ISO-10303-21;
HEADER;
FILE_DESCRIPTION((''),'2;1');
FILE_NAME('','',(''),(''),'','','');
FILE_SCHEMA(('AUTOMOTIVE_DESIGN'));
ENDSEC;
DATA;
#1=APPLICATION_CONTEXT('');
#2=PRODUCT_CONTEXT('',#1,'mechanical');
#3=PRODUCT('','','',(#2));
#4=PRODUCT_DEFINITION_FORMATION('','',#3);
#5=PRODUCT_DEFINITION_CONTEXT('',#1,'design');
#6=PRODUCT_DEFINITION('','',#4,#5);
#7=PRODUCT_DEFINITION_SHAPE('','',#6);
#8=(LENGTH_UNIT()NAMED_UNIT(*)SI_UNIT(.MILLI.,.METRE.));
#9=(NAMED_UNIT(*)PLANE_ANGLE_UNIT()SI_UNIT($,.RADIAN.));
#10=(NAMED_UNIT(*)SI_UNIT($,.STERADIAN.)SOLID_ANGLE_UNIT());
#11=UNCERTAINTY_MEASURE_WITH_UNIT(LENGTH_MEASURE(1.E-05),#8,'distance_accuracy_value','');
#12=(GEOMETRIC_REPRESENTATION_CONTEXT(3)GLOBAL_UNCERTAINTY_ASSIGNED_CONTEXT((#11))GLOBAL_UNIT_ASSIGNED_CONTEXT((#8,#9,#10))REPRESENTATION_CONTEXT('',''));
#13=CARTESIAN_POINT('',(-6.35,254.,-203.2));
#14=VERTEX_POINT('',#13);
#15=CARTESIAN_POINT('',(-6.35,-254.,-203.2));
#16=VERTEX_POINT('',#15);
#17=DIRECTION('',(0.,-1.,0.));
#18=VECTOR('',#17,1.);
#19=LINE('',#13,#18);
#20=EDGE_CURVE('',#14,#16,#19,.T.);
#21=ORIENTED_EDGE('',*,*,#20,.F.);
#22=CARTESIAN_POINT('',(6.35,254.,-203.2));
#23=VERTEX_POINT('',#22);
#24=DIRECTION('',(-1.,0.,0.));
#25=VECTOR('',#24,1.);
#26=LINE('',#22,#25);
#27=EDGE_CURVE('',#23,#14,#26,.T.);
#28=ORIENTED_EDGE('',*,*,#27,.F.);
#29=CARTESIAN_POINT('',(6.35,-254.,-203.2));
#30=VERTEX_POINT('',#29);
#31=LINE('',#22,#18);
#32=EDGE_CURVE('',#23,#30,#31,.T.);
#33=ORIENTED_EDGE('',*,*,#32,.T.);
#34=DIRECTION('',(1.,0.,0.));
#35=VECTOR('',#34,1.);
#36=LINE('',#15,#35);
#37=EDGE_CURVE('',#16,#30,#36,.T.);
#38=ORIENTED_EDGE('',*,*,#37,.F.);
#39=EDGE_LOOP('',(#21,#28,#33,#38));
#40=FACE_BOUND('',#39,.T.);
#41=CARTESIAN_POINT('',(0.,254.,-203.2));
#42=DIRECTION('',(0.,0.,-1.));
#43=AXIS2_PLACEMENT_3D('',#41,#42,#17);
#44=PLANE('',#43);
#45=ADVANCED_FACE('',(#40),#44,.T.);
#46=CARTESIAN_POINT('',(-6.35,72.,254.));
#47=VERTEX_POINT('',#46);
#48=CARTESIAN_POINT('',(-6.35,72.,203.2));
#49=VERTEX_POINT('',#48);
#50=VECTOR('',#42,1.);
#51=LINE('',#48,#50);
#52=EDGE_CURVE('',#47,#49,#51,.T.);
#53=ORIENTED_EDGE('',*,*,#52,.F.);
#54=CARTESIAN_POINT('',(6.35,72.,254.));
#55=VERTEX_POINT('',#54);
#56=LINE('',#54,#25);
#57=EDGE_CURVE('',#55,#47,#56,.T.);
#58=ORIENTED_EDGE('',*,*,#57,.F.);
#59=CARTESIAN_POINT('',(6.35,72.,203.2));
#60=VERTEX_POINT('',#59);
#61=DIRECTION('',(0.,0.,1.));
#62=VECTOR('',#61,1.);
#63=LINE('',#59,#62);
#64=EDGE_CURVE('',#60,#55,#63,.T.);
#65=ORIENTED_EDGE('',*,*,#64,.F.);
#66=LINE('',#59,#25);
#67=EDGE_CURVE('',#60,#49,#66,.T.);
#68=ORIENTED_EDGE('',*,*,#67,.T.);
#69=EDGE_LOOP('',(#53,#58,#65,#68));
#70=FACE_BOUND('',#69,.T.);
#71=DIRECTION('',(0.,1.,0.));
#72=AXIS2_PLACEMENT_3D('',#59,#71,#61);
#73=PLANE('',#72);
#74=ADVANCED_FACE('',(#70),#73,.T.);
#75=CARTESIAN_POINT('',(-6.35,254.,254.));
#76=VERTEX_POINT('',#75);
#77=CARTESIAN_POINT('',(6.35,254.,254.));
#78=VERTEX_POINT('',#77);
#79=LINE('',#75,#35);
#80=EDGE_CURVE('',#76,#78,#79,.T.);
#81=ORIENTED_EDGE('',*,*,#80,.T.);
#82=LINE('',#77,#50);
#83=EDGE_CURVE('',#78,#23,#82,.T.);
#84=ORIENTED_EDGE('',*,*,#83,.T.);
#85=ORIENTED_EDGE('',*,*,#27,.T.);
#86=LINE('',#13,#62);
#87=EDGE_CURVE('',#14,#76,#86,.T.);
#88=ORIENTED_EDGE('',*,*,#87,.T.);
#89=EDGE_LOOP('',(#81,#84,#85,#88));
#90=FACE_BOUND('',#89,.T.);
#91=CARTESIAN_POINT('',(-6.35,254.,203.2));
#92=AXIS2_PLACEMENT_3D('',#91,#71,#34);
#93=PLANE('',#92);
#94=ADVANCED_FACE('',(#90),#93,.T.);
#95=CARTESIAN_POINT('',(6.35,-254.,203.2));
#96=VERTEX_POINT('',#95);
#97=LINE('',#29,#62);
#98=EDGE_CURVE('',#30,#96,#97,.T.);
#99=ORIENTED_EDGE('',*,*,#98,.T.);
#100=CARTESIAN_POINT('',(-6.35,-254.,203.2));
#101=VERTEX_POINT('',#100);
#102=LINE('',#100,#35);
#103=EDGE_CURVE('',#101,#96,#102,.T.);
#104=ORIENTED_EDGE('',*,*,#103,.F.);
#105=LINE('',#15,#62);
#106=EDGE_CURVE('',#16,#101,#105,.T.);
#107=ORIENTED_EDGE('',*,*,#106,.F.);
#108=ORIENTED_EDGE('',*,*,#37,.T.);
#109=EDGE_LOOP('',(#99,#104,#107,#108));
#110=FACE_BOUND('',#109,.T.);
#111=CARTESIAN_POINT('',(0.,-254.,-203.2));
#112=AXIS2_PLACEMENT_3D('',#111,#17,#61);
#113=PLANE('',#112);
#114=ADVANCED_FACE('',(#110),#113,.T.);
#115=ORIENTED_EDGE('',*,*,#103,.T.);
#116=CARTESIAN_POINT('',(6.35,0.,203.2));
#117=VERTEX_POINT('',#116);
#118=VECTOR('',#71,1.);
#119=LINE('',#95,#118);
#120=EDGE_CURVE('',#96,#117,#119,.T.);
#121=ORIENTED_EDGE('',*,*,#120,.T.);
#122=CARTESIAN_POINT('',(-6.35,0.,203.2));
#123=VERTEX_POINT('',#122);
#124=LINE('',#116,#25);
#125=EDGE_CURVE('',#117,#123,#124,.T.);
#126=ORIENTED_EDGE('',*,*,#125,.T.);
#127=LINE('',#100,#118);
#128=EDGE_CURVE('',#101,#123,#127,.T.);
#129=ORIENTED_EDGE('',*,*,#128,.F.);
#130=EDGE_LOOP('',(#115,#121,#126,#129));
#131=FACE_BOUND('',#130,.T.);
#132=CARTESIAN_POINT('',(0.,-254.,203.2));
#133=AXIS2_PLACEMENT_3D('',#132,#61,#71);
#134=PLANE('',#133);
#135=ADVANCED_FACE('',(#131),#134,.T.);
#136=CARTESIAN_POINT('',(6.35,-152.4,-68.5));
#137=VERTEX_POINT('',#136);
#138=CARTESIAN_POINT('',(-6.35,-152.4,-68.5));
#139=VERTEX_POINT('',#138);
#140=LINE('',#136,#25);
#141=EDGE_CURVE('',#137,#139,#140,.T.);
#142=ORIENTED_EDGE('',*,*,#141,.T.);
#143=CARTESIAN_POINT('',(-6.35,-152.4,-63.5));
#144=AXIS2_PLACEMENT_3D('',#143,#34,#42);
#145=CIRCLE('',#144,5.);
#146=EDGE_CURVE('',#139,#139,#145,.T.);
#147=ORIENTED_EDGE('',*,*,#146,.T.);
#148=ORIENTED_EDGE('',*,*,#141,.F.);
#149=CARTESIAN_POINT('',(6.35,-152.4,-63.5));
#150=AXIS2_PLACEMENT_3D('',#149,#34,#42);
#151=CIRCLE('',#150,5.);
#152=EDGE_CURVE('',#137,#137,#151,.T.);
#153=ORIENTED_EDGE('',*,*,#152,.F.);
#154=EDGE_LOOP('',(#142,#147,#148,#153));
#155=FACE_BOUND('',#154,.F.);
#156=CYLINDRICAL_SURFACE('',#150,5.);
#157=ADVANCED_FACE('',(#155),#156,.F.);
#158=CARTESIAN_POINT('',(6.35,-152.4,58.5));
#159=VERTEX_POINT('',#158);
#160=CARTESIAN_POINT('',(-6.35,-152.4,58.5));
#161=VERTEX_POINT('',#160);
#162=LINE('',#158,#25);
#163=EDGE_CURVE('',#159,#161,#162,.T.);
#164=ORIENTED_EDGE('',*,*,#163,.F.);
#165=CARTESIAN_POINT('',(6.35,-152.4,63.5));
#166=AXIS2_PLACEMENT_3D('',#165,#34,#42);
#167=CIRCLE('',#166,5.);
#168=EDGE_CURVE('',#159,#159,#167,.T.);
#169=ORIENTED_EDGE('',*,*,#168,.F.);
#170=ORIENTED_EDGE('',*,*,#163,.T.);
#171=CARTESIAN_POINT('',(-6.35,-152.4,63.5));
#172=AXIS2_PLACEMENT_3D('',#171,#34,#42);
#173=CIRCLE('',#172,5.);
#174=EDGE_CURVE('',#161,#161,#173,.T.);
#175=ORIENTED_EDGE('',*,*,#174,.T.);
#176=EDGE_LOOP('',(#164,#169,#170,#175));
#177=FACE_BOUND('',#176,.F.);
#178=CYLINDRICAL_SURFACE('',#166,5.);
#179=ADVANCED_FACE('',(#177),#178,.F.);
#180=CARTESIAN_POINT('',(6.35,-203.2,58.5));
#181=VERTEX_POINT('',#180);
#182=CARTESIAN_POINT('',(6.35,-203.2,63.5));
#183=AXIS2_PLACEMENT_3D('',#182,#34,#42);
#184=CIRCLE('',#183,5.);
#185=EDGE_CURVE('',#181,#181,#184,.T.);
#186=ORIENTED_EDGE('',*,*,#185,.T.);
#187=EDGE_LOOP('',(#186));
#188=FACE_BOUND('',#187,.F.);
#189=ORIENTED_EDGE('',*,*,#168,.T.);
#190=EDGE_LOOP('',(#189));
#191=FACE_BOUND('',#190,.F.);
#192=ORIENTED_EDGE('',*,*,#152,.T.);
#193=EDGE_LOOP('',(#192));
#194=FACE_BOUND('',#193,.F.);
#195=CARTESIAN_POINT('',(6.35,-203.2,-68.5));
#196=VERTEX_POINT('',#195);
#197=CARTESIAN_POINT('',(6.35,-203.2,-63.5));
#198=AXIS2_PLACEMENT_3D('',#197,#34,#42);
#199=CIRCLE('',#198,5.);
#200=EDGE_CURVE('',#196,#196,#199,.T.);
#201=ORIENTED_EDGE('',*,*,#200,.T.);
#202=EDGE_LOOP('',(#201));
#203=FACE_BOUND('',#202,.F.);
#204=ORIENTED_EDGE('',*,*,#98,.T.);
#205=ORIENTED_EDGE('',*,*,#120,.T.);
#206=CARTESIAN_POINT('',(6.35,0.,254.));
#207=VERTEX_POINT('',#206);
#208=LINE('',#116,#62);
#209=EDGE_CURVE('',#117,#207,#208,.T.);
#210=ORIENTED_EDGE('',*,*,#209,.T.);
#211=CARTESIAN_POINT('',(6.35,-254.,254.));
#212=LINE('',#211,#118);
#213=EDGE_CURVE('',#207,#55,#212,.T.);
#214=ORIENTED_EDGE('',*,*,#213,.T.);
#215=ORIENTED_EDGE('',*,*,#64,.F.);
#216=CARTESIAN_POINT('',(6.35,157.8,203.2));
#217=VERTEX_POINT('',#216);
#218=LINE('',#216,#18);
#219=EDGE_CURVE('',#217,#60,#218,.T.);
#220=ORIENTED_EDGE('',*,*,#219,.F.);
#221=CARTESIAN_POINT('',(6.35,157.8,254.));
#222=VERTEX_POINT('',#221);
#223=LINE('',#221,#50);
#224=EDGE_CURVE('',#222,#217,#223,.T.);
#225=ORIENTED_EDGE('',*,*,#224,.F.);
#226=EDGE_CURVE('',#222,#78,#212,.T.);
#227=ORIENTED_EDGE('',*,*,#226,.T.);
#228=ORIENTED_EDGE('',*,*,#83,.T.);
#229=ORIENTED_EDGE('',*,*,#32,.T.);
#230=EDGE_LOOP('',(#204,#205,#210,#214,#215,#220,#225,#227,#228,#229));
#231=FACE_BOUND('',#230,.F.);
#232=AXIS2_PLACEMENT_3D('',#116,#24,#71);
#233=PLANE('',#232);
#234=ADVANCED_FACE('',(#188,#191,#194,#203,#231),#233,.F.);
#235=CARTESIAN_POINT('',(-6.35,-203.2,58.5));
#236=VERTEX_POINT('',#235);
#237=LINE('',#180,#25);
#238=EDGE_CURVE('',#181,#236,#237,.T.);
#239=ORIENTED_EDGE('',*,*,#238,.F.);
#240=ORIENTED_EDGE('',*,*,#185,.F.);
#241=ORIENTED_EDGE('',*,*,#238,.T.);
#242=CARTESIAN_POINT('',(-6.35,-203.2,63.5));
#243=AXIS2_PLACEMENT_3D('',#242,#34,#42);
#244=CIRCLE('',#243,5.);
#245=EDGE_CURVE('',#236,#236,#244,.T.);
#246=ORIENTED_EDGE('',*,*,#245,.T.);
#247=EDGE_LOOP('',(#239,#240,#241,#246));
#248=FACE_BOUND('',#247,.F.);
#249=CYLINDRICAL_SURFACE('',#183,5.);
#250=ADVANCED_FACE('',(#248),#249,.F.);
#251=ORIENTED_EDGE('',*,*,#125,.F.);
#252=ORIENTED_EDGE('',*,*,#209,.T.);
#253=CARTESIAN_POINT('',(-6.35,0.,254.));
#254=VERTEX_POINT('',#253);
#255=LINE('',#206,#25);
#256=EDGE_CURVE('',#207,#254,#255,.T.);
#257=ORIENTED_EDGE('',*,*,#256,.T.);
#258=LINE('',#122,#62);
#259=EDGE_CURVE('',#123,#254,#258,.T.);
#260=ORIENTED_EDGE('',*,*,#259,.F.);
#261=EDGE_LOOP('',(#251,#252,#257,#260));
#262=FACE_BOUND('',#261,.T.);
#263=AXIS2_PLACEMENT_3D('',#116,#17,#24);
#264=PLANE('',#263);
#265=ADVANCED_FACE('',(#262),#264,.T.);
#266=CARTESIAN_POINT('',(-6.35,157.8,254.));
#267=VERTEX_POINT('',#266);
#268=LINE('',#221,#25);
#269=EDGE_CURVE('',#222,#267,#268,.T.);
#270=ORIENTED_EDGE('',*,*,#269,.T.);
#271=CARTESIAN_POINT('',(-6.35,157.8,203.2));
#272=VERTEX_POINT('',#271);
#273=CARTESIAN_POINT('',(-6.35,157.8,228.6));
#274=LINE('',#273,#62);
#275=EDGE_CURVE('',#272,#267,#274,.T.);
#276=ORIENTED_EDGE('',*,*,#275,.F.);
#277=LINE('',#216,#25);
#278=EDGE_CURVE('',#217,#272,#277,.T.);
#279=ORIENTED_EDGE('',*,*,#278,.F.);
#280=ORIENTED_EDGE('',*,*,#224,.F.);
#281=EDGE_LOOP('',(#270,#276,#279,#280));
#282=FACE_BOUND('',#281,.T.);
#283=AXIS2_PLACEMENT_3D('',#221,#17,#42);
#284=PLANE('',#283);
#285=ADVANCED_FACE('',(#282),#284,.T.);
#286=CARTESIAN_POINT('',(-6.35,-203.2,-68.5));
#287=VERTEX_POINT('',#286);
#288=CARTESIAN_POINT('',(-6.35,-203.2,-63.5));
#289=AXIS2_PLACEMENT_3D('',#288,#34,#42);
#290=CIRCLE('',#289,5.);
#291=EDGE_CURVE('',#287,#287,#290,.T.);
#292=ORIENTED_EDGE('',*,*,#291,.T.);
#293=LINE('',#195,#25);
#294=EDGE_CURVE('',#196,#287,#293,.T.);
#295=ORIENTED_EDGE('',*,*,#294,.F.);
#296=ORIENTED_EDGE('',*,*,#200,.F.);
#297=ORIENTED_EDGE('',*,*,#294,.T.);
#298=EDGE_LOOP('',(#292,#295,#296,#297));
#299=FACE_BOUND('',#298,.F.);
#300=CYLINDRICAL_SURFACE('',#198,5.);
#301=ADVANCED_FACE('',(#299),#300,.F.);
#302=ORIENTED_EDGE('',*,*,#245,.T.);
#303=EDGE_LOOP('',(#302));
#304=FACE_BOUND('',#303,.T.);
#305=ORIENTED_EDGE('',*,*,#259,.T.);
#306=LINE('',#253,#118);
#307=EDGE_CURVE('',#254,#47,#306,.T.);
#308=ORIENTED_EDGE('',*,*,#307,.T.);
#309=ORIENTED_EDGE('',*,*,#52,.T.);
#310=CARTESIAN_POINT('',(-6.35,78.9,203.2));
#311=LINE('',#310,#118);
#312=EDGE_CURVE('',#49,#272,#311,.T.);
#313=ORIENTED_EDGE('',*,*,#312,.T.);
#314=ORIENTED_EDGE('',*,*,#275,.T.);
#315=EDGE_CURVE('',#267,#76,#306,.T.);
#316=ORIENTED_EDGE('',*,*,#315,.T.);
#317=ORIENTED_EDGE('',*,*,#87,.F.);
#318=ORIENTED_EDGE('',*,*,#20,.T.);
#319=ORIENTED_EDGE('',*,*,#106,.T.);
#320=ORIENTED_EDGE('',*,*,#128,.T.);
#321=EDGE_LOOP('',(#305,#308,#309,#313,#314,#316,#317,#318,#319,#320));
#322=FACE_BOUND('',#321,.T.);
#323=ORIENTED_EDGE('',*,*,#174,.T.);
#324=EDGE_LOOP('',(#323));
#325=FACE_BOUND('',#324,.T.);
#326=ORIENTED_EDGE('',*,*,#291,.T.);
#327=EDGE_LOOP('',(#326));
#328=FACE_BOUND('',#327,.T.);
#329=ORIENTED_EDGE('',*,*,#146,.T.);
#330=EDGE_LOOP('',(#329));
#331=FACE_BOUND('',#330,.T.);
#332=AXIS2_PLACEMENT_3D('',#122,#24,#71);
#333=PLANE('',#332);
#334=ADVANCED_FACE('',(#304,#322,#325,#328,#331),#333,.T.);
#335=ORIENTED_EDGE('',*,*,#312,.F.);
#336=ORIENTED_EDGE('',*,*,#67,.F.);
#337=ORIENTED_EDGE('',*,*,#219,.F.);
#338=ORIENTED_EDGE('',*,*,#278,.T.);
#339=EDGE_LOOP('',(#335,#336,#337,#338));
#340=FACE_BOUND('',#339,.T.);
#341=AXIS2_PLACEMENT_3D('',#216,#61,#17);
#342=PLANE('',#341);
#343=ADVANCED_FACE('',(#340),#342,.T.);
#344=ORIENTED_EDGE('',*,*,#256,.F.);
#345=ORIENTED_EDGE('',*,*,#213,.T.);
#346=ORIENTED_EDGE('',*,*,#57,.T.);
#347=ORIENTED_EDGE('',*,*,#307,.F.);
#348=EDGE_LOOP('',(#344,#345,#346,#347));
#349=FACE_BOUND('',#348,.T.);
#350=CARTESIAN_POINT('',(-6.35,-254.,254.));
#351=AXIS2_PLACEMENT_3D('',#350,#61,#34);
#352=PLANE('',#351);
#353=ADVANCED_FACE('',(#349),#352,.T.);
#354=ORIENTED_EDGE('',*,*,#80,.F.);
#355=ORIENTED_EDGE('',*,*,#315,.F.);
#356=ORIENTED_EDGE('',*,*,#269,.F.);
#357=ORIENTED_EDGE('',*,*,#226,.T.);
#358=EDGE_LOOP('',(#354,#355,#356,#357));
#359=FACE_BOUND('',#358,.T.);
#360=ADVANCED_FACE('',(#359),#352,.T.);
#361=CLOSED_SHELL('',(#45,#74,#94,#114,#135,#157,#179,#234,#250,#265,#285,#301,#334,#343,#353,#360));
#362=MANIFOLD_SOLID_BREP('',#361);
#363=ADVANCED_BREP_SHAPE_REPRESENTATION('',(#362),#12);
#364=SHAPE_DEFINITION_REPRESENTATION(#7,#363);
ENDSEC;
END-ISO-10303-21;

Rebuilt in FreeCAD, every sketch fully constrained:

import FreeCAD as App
import Part
import Sketcher

V = App.Vector
Q = App.Units.Quantity


def add_polygon(sketch, points):
    """Adds a closed chain of lines whose ends are joined by coincident constraints."""
    first, n = sketch.GeometryCount, len(points)
    for a, b in zip(points, points[1:] + points[:1]):
        sketch.addGeometry(Part.LineSegment(App.Vector(*a, 0), App.Vector(*b, 0)), False)
    for i in range(n):
        sketch.addConstraint(Sketcher.Constraint("Coincident", first + i, 2, first + (i + 1) % n, 1))

doc = App.newDocument("Part")
params = doc.addObject("Spreadsheet::Sheet", "Params")
for row, (alias, value) in enumerate([
    ("sketch1_width", "20 in"),
    ("sketch1_height", "16 in"),
    ("pad1_length", "0.5 in"),
    ("pocket1_length", "0.5 in"),
    ("sketch3_height", "10 in"),
    ("sketch3_width", "0.5 in"),
    ("pad2_length", "2 in"),
    ("sketch4_height", "2 in"),
    ("pocket2_length", "2 in"),
], start=1):
    params.set(f"A{row}", alias)
    params.set(f"B{row}", "=" + value)
    params.setAlias(f"B{row}", alias)

body = doc.addObject("PartDesign::Body", "Body")

sketch1 = body.newObject("Sketcher::SketchObject", "Sketch")
sketch1.AttachmentSupport = (doc.getObject("YZ_Plane"), [""])
sketch1.MapMode = "FlatFace"
add_polygon(sketch1, [(254, 203), (-254, 203), (-254, -203), (254, -203)])
sketch1.addConstraint(Sketcher.Constraint("Horizontal", 0))
sketch1.addConstraint(Sketcher.Constraint("Vertical", 1))
sketch1.addConstraint(Sketcher.Constraint("Horizontal", 2))
sketch1.addConstraint(Sketcher.Constraint("Vertical", 3))
sketch1.addConstraint(Sketcher.Constraint("Symmetric", 0, 2, 2, 2, -1, 1))
sketch1.addConstraint(Sketcher.Constraint("DistanceX", 0, 2, 0, 1, Q("20 in")))
sketch1.addConstraint(Sketcher.Constraint("DistanceY", 1, 2, 1, 1, Q("16 in")))
sketch1.setExpression("Constraints[9]", "Params.sketch1_width")
sketch1.setExpression("Constraints[10]", "Params.sketch1_height")
pad1 = body.newObject("PartDesign::Pad", "Pad")
pad1.Profile = sketch1
pad1.setExpression("Length", "Params.pad1_length")
pad1.Midplane = True

sketch2 = body.newObject("Sketcher::SketchObject", "Sketch001")
sketch2.AttachmentSupport = (doc.getObject("YZ_Plane"), [""])
sketch2.MapMode = "FlatFace"
sketch2.AttachmentOffset = App.Placement(V(0, 0, 0.25 * 25.4), App.Rotation())
sketch2.addGeometry(Part.Circle(V(-203, 64, 0), V(0, 0, 1), 5), False)
sketch2.addGeometry(Part.Circle(V(-203, -64, 0), V(0, 0, 1), 5), False)
sketch2.addGeometry(Part.Circle(V(-152, 64, 0), V(0, 0, 1), 5), False)
sketch2.addGeometry(Part.Circle(V(-152, -64, 0), V(0, 0, 1), 5), False)
sketch2.addConstraint(Sketcher.Constraint("Equal", 0, 1))
sketch2.addConstraint(Sketcher.Constraint("Equal", 1, 2))
sketch2.addConstraint(Sketcher.Constraint("Equal", 2, 3))
sketch2.addConstraint(Sketcher.Constraint("Symmetric", 0, 3, 1, 3, -1))
sketch2.addConstraint(Sketcher.Constraint("Symmetric", 2, 3, 3, 3, -1))
sketch2.addConstraint(Sketcher.Constraint("Horizontal", 0, 3, 2, 3))
sketch2.addConstraint(Sketcher.Constraint("DistanceY", 1, 3, 0, 3, Q("5 in")))
sketch2.addConstraint(Sketcher.Constraint("DistanceX", 0, 3, 2, 3, Q("2 in")))
sketch2.addConstraint(Sketcher.Constraint("Diameter", 0, Q("0.3937 in")))
sketch2.addConstraint(Sketcher.Constraint("DistanceX", 0, 3, -1, 1, Q("8 in")))
pocket1 = body.newObject("PartDesign::Pocket", "Pocket")
pocket1.Profile = sketch2
pocket1.setExpression("Length", "Params.pocket1_length")

sketch3 = body.newObject("Sketcher::SketchObject", "Sketch002")
sketch3.AttachmentSupport = (doc.getObject("XY_Plane"), [""])
sketch3.MapMode = "FlatFace"
sketch3.AttachmentOffset = App.Placement(V(0, 0, 8 * 25.4), App.Rotation())
add_polygon(sketch3, [(6, 254), (-6, 254), (-6, 0), (6, 0)])
sketch3.addConstraint(Sketcher.Constraint("Horizontal", 0))
sketch3.addConstraint(Sketcher.Constraint("Vertical", 1))
sketch3.addConstraint(Sketcher.Constraint("Horizontal", 2))
sketch3.addConstraint(Sketcher.Constraint("Vertical", 3))
sketch3.addConstraint(Sketcher.Constraint("Symmetric", 1, 2, 2, 2, -1, 1))
sketch3.addConstraint(Sketcher.Constraint("DistanceY", 1, 2, 1, 1, Q("10 in")))
sketch3.addConstraint(Sketcher.Constraint("DistanceX", 0, 2, 0, 1, Q("0.5 in")))
sketch3.setExpression("Constraints[9]", "Params.sketch3_height")
sketch3.setExpression("Constraints[10]", "Params.sketch3_width")
pad2 = body.newObject("PartDesign::Pad", "Pad001")
pad2.Profile = sketch3
pad2.setExpression("Length", "Params.pad2_length")

sketch4 = body.newObject("Sketcher::SketchObject", "Sketch003")
sketch4.AttachmentSupport = (doc.getObject("YZ_Plane"), [""])
sketch4.MapMode = "FlatFace"
sketch4.AttachmentOffset = App.Placement(V(0, 0, 0.25 * 25.4), App.Rotation())
add_polygon(sketch4, [(158, 203), (158, 254), (72, 254), (72, 203)])
sketch4.addConstraint(Sketcher.Constraint("Vertical", 0))
sketch4.addConstraint(Sketcher.Constraint("Horizontal", 1))
sketch4.addConstraint(Sketcher.Constraint("Vertical", 2))
sketch4.addConstraint(Sketcher.Constraint("Horizontal", 3))
sketch4.addConstraint(Sketcher.Constraint("DistanceY", 0, 1, 0, 2, Q("2 in")))
sketch4.addConstraint(Sketcher.Constraint("DistanceY", -1, 1, 0, 2, Q("10 in")))
sketch4.addConstraint(Sketcher.Constraint("DistanceX", 1, 2, 1, 1, Q("85.8 mm")))
sketch4.addConstraint(Sketcher.Constraint("DistanceX", -1, 1, 0, 2, Q("6.2126 in")))
sketch4.setExpression("Constraints[8]", "Params.sketch4_height")
pocket2 = body.newObject("PartDesign::Pocket", "Pocket001")
pocket2.Profile = sketch4
pocket2.setExpression("Length", "Params.pocket2_length")

doc.recompute()
